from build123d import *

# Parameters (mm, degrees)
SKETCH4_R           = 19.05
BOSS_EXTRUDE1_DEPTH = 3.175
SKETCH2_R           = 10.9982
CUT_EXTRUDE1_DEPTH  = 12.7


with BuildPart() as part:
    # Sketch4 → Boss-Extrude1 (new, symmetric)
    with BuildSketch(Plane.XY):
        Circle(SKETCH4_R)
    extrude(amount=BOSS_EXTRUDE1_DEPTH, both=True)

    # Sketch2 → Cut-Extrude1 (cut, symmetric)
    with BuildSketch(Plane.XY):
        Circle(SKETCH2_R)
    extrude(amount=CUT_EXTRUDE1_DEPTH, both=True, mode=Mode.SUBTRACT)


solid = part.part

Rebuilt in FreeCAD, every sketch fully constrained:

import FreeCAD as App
import Part
import Sketcher

V = App.Vector
Q = App.Units.Quantity

doc = App.newDocument("Part")
body = doc.addObject("PartDesign::Body", "Body")

# Sketch on XY plane
sketch1 = body.newObject("Sketcher::SketchObject", "Sketch")
sketch1.AttachmentSupport = (doc.getObject("XY_Plane"), [""])
sketch1.MapMode = "FlatFace"
sketch1.addGeometry(Part.Circle(V(0, 0, 0), V(0, 0, 1), 19.05), False)
sketch1.addConstraint([
    Sketcher.Constraint("Coincident", 0, 3, -1, 1),
    Sketcher.Constraint("Diameter", 0, Q("1.5 in")),
])
pad1 = body.newObject("PartDesign::Pad", "Pad")
pad1.Profile = sketch1
pad1.Length = Q("0.25 in")
pad1.Midplane = True

# Sketch on XY plane
sketch2 = body.newObject("Sketcher::SketchObject", "Sketch001")
sketch2.AttachmentSupport = (doc.getObject("XY_Plane"), [""])
sketch2.MapMode = "FlatFace"
sketch2.addGeometry(Part.Circle(V(0, 0, 0), V(0, 0, 1), 10.9982), False)
sketch2.addConstraint([
    Sketcher.Constraint("Coincident", 0, 3, -1, 1),
    Sketcher.Constraint("Diameter", 0, Q("0.866 in")),
])
pocket1 = body.newObject("PartDesign::Pocket", "Pocket")
pocket1.Profile = sketch2
pocket1.Length = Q("1 in")
pocket1.Midplane = True

doc.recompute()
